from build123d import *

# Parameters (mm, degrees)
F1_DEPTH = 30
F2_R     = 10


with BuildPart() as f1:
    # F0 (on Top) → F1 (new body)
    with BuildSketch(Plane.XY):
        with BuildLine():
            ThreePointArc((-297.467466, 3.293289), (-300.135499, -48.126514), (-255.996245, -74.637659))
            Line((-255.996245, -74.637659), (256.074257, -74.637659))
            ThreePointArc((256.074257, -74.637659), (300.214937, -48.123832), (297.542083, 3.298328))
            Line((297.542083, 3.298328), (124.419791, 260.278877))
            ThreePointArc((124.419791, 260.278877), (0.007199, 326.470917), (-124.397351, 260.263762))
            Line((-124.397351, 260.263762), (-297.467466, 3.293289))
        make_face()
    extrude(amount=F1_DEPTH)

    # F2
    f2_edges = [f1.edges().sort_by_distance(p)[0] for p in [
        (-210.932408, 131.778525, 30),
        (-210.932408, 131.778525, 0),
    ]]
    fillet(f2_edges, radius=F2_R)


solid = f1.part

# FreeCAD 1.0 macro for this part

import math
import FreeCAD as App
import Part
import Sketcher


def edges_at(feature, points):
    """Names of the edges that pass closest to the given points."""
    edges = feature.Shape.Edges
    near = lambda p: min(range(len(edges)), key=lambda i: edges[i].distToShape(Part.Vertex(*p))[0])
    return sorted({f"Edge{near(p) + 1}" for p in points})

doc = App.newDocument("Part")
body = doc.addObject("PartDesign::Body", "Body")

# Sketch on XY plane
sketch1 = body.newObject("Sketcher::SketchObject", "Sketch")
sketch1.AttachmentSupport = (doc.getObject("XY_Plane"), [""])
sketch1.MapMode = "FlatFace"
sketch1.addGeometry([
    Part.ArcOfCircle(Part.Circle(App.Vector(-255.996246, -24.637659, 0), App.Vector(0, 0, 1), 50), math.radians(146.039656), math.radians(270.000001)),  # 0
    Part.LineSegment(App.Vector(-255.996245, -74.637659, 0), App.Vector(256.074257, -74.637659, 0)),  # 1
    Part.ArcOfCircle(Part.Circle(App.Vector(256.074256, -24.637659, 0), App.Vector(0, 0, 1), 50), math.radians(-89.999999), math.radians(33.967305)),  # 2
    Part.LineSegment(App.Vector(297.542083, 3.298328, 0), App.Vector(124.419791, 260.278877, 0)),  # 3
    Part.ArcOfCircle(Part.Circle(App.Vector(0.016311, 176.470917, 0), App.Vector(0, 0, 1), 150), math.radians(33.967305), math.radians(146.039656)),  # 4
    Part.LineSegment(App.Vector(-124.397351, 260.263762, 0), App.Vector(-297.467466, 3.293289, 0)),  # 5
], False)
sketch1.addConstraint([
    Sketcher.Constraint("Tangent", 0, 2, 1, 1),
    Sketcher.Constraint("Tangent", 1, 2, 2, 1),
    Sketcher.Constraint("Tangent", 2, 2, 3, 1),
    Sketcher.Constraint("Tangent", 3, 2, 4, 1),
    Sketcher.Constraint("Tangent", 4, 2, 5, 1),
    Sketcher.Constraint("Tangent", 5, 2, 0, 1),
    Sketcher.Constraint("Horizontal", 1),
    Sketcher.Constraint("Equal", 0, 2),
    Sketcher.Constraint("Radius", 0, 50.0),
    Sketcher.Constraint("Radius", 4, 150.0),
    Sketcher.Constraint("DistanceX", 1, 1, 1, 2, 512.070502),
    Sketcher.Constraint("Distance", 3, 309.855338),
    Sketcher.Constraint("Distance", 5, 309.817831),
    Sketcher.Constraint("DistanceY", 0, 3, -1, 1, 24.637659),
    Sketcher.Constraint("DistanceX", -1, 1, 4, 3, 0.016311),
])
pad1 = body.newObject("PartDesign::Pad", "Pad")
pad1.Profile = sketch1
pad1.Length = 30
doc.recompute()

fillet = body.newObject("PartDesign::Fillet", "Fillet")
fillet.Base = (pad1, edges_at(pad1, [(-210.932, 131.779, 30), (-210.932, 131.779, 0)]))
fillet.Radius = 10

doc.recompute()
